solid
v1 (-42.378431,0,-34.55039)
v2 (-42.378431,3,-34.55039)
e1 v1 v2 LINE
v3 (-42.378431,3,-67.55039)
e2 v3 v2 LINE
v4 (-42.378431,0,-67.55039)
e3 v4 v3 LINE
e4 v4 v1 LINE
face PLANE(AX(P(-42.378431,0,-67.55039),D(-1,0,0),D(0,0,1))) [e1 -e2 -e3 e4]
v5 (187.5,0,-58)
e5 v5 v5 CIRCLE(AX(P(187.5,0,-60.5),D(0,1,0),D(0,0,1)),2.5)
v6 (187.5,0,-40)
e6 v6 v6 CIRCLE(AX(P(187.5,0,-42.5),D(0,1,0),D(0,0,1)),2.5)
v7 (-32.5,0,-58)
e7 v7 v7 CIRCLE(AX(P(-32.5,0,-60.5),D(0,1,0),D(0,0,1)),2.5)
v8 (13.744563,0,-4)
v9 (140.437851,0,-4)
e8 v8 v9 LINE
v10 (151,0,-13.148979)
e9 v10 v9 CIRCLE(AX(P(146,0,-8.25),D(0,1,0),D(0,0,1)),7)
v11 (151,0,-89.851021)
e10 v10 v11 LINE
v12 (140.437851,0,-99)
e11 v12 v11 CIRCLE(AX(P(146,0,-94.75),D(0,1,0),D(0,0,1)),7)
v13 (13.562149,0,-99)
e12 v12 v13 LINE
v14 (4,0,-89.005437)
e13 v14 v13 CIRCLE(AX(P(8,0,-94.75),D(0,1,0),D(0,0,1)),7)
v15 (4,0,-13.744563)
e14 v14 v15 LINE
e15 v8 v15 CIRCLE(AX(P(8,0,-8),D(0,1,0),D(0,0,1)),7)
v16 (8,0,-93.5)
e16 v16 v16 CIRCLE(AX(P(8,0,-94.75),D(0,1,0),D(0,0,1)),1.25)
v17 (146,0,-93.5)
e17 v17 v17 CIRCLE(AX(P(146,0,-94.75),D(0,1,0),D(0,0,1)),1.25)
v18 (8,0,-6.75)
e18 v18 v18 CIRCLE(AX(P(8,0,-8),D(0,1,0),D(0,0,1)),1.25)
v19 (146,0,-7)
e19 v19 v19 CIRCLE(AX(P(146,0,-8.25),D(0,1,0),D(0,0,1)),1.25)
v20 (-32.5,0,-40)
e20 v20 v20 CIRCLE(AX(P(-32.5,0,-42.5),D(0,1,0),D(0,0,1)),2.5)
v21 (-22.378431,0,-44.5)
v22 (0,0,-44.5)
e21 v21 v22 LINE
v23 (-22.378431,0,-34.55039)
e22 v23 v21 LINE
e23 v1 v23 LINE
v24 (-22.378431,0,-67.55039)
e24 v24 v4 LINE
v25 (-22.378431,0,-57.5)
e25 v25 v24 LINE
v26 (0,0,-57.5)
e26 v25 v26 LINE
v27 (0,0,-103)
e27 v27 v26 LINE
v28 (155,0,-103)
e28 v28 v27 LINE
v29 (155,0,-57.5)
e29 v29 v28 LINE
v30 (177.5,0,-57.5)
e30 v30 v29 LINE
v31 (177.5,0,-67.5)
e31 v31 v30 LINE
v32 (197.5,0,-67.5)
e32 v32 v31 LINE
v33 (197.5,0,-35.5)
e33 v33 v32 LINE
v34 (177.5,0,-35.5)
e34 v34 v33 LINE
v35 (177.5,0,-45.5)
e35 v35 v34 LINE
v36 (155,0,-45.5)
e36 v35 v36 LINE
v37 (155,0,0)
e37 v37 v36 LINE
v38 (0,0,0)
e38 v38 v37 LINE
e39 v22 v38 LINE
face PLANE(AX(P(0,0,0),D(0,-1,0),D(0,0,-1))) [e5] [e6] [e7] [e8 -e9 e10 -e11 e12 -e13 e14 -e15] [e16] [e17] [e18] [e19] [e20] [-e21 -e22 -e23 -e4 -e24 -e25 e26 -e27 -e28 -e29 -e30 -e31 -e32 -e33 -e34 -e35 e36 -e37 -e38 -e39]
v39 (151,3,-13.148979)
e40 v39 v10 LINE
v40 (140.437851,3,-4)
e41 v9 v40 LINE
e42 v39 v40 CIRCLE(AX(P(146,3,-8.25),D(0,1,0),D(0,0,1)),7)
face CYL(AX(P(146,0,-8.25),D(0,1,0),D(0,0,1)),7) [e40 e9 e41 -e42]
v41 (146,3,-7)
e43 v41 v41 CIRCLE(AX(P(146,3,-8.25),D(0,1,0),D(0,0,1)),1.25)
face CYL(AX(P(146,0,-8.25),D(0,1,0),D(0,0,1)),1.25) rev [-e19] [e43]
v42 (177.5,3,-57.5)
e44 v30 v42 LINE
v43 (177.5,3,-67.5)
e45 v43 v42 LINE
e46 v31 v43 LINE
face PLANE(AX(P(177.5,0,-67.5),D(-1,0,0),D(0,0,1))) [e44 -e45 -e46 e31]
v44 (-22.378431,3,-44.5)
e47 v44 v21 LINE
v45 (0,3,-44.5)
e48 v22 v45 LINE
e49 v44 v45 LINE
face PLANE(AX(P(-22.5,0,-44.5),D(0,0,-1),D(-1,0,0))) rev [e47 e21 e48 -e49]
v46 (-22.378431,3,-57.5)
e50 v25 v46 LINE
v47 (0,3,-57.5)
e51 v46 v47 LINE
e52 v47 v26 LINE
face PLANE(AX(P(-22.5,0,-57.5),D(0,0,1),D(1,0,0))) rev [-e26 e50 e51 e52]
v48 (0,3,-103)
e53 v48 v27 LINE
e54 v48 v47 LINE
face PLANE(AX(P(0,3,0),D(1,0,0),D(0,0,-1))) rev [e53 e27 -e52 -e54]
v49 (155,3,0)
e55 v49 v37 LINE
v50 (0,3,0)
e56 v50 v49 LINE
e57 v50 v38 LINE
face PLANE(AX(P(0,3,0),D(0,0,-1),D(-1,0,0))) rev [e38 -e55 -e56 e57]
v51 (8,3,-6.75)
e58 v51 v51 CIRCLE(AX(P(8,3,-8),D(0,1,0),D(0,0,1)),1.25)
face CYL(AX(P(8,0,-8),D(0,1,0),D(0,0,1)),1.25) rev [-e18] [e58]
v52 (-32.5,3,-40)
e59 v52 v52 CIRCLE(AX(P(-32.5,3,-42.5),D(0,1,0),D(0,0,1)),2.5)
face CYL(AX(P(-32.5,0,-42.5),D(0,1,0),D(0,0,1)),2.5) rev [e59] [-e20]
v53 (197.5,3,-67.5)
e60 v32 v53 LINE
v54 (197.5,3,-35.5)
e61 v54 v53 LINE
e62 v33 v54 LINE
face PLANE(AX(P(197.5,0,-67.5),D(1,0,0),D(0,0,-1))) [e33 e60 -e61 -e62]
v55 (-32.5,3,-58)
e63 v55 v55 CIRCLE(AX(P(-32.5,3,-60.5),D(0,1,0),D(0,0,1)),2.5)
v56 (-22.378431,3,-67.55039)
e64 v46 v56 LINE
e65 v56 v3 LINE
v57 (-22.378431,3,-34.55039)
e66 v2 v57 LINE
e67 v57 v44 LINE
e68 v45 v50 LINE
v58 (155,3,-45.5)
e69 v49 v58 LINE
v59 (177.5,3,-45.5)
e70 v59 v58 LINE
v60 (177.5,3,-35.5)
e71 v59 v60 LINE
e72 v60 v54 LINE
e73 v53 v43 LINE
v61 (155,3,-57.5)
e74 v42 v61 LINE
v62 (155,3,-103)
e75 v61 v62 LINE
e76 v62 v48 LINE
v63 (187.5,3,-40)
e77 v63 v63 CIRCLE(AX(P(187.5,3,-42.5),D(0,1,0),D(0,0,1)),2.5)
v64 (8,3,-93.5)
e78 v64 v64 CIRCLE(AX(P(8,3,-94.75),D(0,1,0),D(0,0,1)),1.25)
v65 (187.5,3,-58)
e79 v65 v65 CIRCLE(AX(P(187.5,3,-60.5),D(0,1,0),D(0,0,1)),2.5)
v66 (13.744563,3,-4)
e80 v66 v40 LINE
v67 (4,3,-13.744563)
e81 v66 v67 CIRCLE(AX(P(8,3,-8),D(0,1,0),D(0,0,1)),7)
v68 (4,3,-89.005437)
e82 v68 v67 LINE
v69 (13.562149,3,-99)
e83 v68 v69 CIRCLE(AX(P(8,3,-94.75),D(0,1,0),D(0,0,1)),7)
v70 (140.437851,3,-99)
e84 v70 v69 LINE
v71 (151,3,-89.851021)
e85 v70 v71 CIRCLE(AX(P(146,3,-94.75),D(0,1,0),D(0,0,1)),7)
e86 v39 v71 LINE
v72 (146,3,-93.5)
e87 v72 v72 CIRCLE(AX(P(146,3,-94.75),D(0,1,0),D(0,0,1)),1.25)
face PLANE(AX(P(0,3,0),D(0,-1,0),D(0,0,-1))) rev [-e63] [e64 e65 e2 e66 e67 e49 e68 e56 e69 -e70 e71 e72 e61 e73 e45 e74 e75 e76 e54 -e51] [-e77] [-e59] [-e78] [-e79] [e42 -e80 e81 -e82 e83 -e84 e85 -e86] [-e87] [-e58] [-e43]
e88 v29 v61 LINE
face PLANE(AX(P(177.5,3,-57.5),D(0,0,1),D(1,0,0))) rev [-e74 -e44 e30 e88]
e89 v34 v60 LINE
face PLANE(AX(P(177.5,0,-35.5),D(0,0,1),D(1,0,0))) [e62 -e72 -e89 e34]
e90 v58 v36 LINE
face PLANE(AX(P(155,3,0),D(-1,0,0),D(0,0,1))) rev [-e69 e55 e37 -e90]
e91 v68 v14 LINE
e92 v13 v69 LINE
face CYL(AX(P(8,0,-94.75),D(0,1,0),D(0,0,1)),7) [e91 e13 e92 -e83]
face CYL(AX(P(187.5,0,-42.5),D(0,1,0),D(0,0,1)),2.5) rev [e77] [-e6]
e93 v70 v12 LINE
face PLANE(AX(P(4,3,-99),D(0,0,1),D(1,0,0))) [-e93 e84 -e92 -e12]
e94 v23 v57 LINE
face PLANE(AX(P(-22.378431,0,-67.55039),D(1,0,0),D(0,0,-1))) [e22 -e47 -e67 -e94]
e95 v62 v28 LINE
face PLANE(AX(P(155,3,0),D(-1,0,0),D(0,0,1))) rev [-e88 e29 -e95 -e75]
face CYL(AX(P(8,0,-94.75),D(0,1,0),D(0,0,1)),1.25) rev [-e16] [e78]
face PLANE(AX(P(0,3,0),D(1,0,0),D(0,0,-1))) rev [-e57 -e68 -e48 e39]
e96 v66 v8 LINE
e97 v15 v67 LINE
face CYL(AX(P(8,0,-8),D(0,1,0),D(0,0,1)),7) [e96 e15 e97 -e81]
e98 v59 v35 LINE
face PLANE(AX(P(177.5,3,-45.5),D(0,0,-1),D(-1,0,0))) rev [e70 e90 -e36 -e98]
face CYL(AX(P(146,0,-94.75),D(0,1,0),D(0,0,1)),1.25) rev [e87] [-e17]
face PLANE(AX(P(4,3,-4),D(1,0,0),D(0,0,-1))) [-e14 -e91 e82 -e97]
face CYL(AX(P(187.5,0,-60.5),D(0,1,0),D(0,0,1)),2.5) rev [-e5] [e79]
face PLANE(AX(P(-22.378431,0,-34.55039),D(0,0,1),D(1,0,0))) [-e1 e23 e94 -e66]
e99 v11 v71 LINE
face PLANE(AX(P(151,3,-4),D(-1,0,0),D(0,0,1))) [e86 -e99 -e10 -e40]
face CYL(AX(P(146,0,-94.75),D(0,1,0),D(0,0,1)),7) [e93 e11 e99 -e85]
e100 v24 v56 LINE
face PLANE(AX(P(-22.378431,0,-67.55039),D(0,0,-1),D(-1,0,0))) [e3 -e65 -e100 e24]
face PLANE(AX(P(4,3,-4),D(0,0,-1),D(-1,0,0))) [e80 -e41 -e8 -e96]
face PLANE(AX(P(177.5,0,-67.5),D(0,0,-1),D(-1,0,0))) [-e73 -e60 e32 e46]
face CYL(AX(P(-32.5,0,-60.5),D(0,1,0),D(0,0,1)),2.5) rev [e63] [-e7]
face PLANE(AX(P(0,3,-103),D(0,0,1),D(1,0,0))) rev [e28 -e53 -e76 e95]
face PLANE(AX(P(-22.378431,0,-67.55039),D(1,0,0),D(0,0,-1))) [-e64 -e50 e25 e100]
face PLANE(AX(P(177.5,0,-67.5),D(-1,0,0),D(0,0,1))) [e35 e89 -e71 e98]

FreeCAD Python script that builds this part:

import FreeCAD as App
import Part
import Sketcher
Q = App.Units.Quantity


def add_polygon(sketch, points):
    """Adds a closed chain of lines whose ends are joined by coincident constraints."""
    first, n = sketch.GeometryCount, len(points)
    for a, b in zip(points, points[1:] + points[:1]):
        sketch.addGeometry(Part.LineSegment(App.Vector(*a, 0), App.Vector(*b, 0)), False)
    for i in range(n):
        sketch.addConstraint(Sketcher.Constraint("Coincident", first + i, 2, first + (i + 1) % n, 1))

doc = App.newDocument("Part")
body = doc.addObject("PartDesign::Body", "Body")

# Sketch on XZ plane
sketch1 = body.newObject("Sketcher::SketchObject", "Sketch")
sketch1.AttachmentSupport = (doc.getObject("XZ_Plane"), [""])
sketch1.MapMode = "FlatFace"
add_polygon(sketch1, [(0, -103), (0, 0), (155, 0), (155, -103)])  # lines 0-3
add_polygon(sketch1, [(151, -4), (4, -4), (4, -99), (151, -99)])  # lines 4-7
sketch1.addConstraint(Sketcher.Constraint("Vertical", 0))
sketch1.addConstraint(Sketcher.Constraint("Horizontal", 1))
sketch1.addConstraint(Sketcher.Constraint("Vertical", 2))
sketch1.addConstraint(Sketcher.Constraint("Horizontal", 3))
sketch1.addConstraint(Sketcher.Constraint("Horizontal", 4))
sketch1.addConstraint(Sketcher.Constraint("Vertical", 5))
sketch1.addConstraint(Sketcher.Constraint("Horizontal", 6))
sketch1.addConstraint(Sketcher.Constraint("Vertical", 7))
sketch1.addConstraint(Sketcher.Constraint("Coincident", 0, 2, -1, 1))
sketch1.addConstraint(Sketcher.Constraint("DistanceX", 1, 1, 1, 2, Q("155 mm")))
sketch1.addConstraint(Sketcher.Constraint("DistanceX", 4, 2, 4, 1, Q("147 mm")))
sketch1.addConstraint(Sketcher.Constraint("DistanceY", 0, 1, 0, 2, Q("103 mm")))
sketch1.addConstraint(Sketcher.Constraint("DistanceY", 5, 2, 5, 1, Q("95 mm")))
sketch1.addConstraint(Sketcher.Constraint("DistanceX", -1, 1, 4, 2, Q("4 mm")))
sketch1.addConstraint(Sketcher.Constraint("DistanceY", 4, 2, -1, 1, Q("4 mm")))
pad1 = body.newObject("PartDesign::Pad", "Pad")
pad1.Profile = sketch1
pad1.Length = 3
pad1.Reversed = True

# Sketch on YZ plane
sketch2 = body.newObject("Sketcher::SketchObject", "Sketch001")
sketch2.AttachmentSupport = (doc.getObject("YZ_Plane"), [""])
sketch2.MapMode = "FlatFace"
add_polygon(sketch2, [(3, -57.5), (0, -57.5), (0, -44.5), (3, -44.5)])  # lines 0-3
sketch2.addConstraint(Sketcher.Constraint("Horizontal", 0))
sketch2.addConstraint(Sketcher.Constraint("Vertical", 1))
sketch2.addConstraint(Sketcher.Constraint("Horizontal", 2))
sketch2.addConstraint(Sketcher.Constraint("Vertical", 3))
sketch2.addConstraint(Sketcher.Constraint("PointOnObject", 0, 2, -2))
sketch2.addConstraint(Sketcher.Constraint("DistanceX", 0, 2, 0, 1, Q("3 mm")))
sketch2.addConstraint(Sketcher.Constraint("DistanceY", 1, 1, 1, 2, Q("13 mm")))
sketch2.addConstraint(Sketcher.Constraint("DistanceY", 0, 2, -1, 1, Q("57.5 mm")))
pad2 = body.newObject("PartDesign::Pad", "Pad001")
pad2.Profile = sketch2
pad2.Length = 22.5
pad2.Reversed = True

# Sketch on YZ plane
sketch3 = body.newObject("Sketcher::SketchObject", "Sketch002")
sketch3.AttachmentSupport = (doc.getObject("YZ_Plane"), [""])
sketch3.MapMode = "FlatFace"
sketch3.AttachmentOffset = App.Placement(App.Vector(0, 0, 155), App.Rotation())
add_polygon(sketch3, [(3, -45.5), (0, -45.5), (0, -57.5), (3, -57.5)])  # lines 0-3
sketch3.addConstraint(Sketcher.Constraint("Horizontal", 0))
sketch3.addConstraint(Sketcher.Constraint("Vertical", 1))
sketch3.addConstraint(Sketcher.Constraint("Horizontal", 2))
sketch3.addConstraint(Sketcher.Constraint("Vertical", 3))
sketch3.addConstraint(Sketcher.Constraint("PointOnObject", 0, 2, -2))
sketch3.addConstraint(Sketcher.Constraint("DistanceX", 0, 2, 0, 1, Q("3 mm")))
sketch3.addConstraint(Sketcher.Constraint("DistanceY", 1, 2, 1, 1, Q("12 mm")))
sketch3.addConstraint(Sketcher.Constraint("DistanceY", 0, 2, -1, 1, Q("45.5 mm")))
pad3 = body.newObject("PartDesign::Pad", "Pad002")
pad3.Profile = sketch3
pad3.Length = 22.5

# Sketch on XZ plane
sketch4 = body.newObject("Sketcher::SketchObject", "Sketch003")
sketch4.AttachmentSupport = (doc.getObject("XZ_Plane"), [""])
sketch4.MapMode = "FlatFace"
sketch4.AttachmentOffset = App.Placement(App.Vector(0, 0, -3), App.Rotation())
add_polygon(sketch4, [(177.5, -67.5), (177.5, -35.5), (197.5, -35.5), (197.5, -67.5)])  # lines 0-3
sketch4.addGeometry(Part.Circle(App.Vector(187.5, -42.5, 0), App.Vector(0, 0, 1), 2.5), False)  # 4
sketch4.addGeometry(Part.Circle(App.Vector(187.5, -60.5, 0), App.Vector(0, 0, 1), 2.5), False)  # 5
sketch4.addConstraint(Sketcher.Constraint("Vertical", 0))
sketch4.addConstraint(Sketcher.Constraint("Horizontal", 1))
sketch4.addConstraint(Sketcher.Constraint("Vertical", 2))
sketch4.addConstraint(Sketcher.Constraint("Horizontal", 3))
sketch4.addConstraint(Sketcher.Constraint("Equal", 4, 5))
sketch4.addConstraint(Sketcher.Constraint("Vertical", 4, 3, 5, 3))
sketch4.addConstraint(Sketcher.Constraint("Diameter", 4, Q("5 mm")))
sketch4.addConstraint(Sketcher.Constraint("DistanceX", 1, 1, 1, 2, Q("20 mm")))
sketch4.addConstraint(Sketcher.Constraint("DistanceY", 0, 1, 0, 2, Q("32 mm")))
sketch4.addConstraint(Sketcher.Constraint("DistanceY", 5, 3, 4, 3, Q("18 mm")))
sketch4.addConstraint(Sketcher.Constraint("DistanceX", 0, 2, 4, 3, Q("10 mm")))
sketch4.addConstraint(Sketcher.Constraint("DistanceY", 4, 3, 0, 2, Q("7 mm")))
sketch4.addConstraint(Sketcher.Constraint("DistanceX", -1, 1, 4, 3, Q("187.5 mm")))
sketch4.addConstraint(Sketcher.Constraint("DistanceY", 4, 3, -1, 1, Q("42.5 mm")))
pad4 = body.newObject("PartDesign::Pad", "Pad003")
pad4.Profile = sketch4
pad4.Length = 3

# Sketch on XZ plane
sketch5 = body.newObject("Sketcher::SketchObject", "Sketch004")
sketch5.AttachmentSupport = (doc.getObject("XZ_Plane"), [""])
sketch5.MapMode = "FlatFace"
sketch5.AttachmentOffset = App.Placement(App.Vector(0, 0, -3), App.Rotation())
add_polygon(sketch5, [(-42.378431, -67.55039), (-42.378431, -34.55039), (-22.378431, -34.55039), (-22.378431, -67.55039)])  # lines 0-3
sketch5.addGeometry(Part.Circle(App.Vector(-32.5, -42.5, 0), App.Vector(0, 0, 1), 2.5), False)  # 4
sketch5.addGeometry(Part.Circle(App.Vector(-32.5, -60.5, 0), App.Vector(0, 0, 1), 2.5), False)  # 5
sketch5.addConstraint(Sketcher.Constraint("Vertical", 0))
sketch5.addConstraint(Sketcher.Constraint("Horizontal", 1))
sketch5.addConstraint(Sketcher.Constraint("Vertical", 2))
sketch5.addConstraint(Sketcher.Constraint("Horizontal", 3))
sketch5.addConstraint(Sketcher.Constraint("Equal", 4, 5))
sketch5.addConstraint(Sketcher.Constraint("Vertical", 4, 3, 5, 3))
sketch5.addConstraint(Sketcher.Constraint("Diameter", 4, Q("5 mm")))
sketch5.addConstraint(Sketcher.Constraint("DistanceX", 1, 1, 1, 2, Q("20 mm")))
sketch5.addConstraint(Sketcher.Constraint("DistanceY", 0, 1, 0, 2, Q("33 mm")))
sketch5.addConstraint(Sketcher.Constraint("DistanceY", 5, 3, 4, 3, Q("18 mm")))
sketch5.addConstraint(Sketcher.Constraint("DistanceX", 4, 3, -1, 1, Q("32.5 mm")))
sketch5.addConstraint(Sketcher.Constraint("DistanceY", 4, 3, -1, 1, Q("42.5 mm")))
sketch5.addConstraint(Sketcher.Constraint("DistanceX", 0, 2, -1, 1, Q("42.378431 mm")))
sketch5.addConstraint(Sketcher.Constraint("DistanceY", 0, 2, -1, 1, Q("34.55039 mm")))
pad5 = body.newObject("PartDesign::Pad", "Pad004")
pad5.Profile = sketch5
pad5.Length = 3

# Sketch on XZ plane
sketch6 = body.newObject("Sketcher::SketchObject", "Sketch005")
sketch6.AttachmentSupport = (doc.getObject("XZ_Plane"), [""])
sketch6.MapMode = "FlatFace"
sketch6.AttachmentOffset = App.Placement(App.Vector(0, 0, -3), App.Rotation())
sketch6.addGeometry(Part.Circle(App.Vector(8, -8, 0), App.Vector(0, 0, 1), 7), False)
sketch6.addGeometry(Part.Circle(App.Vector(8, -8, 0), App.Vector(0, 0, 1), 1.25), False)
sketch6.addGeometry(Part.Circle(App.Vector(146, -8.25, 0), App.Vector(0, 0, 1), 7), False)
sketch6.addGeometry(Part.Circle(App.Vector(146, -8.25, 0), App.Vector(0, 0, 1), 1.25), False)
sketch6.addGeometry(Part.Circle(App.Vector(8, -94.75, 0), App.Vector(0, 0, 1), 7), False)
sketch6.addGeometry(Part.Circle(App.Vector(8, -94.75, 0), App.Vector(0, 0, 1), 1.25), False)
sketch6.addGeometry(Part.Circle(App.Vector(146, -94.75, 0), App.Vector(0, 0, 1), 7), False)
sketch6.addGeometry(Part.Circle(App.Vector(146, -94.75, 0), App.Vector(0, 0, 1), 1.25), False)
sketch6.addConstraint(Sketcher.Constraint("Coincident", 1, 3, 0, 3))
sketch6.addConstraint(Sketcher.Constraint("Coincident", 3, 3, 2, 3))
sketch6.addConstraint(Sketcher.Constraint("Coincident", 5, 3, 4, 3))
sketch6.addConstraint(Sketcher.Constraint("Coincident", 7, 3, 6, 3))
sketch6.addConstraint(Sketcher.Constraint("Equal", 0, 2))
sketch6.addConstraint(Sketcher.Constraint("Equal", 1, 3))
sketch6.addConstraint(Sketcher.Constraint("Equal", 2, 4))
sketch6.addConstraint(Sketcher.Constraint("Equal", 3, 5))
sketch6.addConstraint(Sketcher.Constraint("Equal", 4, 6))
sketch6.addConstraint(Sketcher.Constraint("Equal", 5, 7))
sketch6.addConstraint(Sketcher.Constraint("Horizontal", 5, 3, 6, 3))
sketch6.addConstraint(Sketcher.Constraint("Vertical", 1, 3, 4, 3))
sketch6.addConstraint(Sketcher.Constraint("Vertical", 3, 3, 6, 3))
sketch6.addConstraint(Sketcher.Constraint("Diameter", 0, Q("14 mm")))
sketch6.addConstraint(Sketcher.Constraint("Diameter", 1, Q("2.5 mm")))
sketch6.addConstraint(Sketcher.Constraint("DistanceX", -1, 1, 0, 3, Q("8 mm")))
sketch6.addConstraint(Sketcher.Constraint("DistanceY", 0, 3, -1, 1, Q("8 mm")))
sketch6.addConstraint(Sketcher.Constraint("DistanceX", -1, 1, 2, 3, Q("146 mm")))
sketch6.addConstraint(Sketcher.Constraint("DistanceY", 4, 3, 2, 3, Q("86.5 mm")))
sketch6.addConstraint(Sketcher.Constraint("DistanceY", 2, 3, -1, 1, Q("8.25 mm")))
pad6 = body.newObject("PartDesign::Pad", "Pad005")
pad6.Profile = sketch6
pad6.Length = 3

# Sketch on XZ plane
sketch7 = body.newObject("Sketcher::SketchObject", "Sketch006")
sketch7.AttachmentSupport = (doc.getObject("XZ_Plane"), [""])
sketch7.MapMode = "FlatFace"
sketch7.AttachmentOffset = App.Placement(App.Vector(0, 0, -3), App.Rotation())
sketch7.addGeometry(Part.Circle(App.Vector(8, -8, 0), App.Vector(0, 0, 1), 7), False)
sketch7.addGeometry(Part.Circle(App.Vector(8, -8, 0), App.Vector(0, 0, 1), 1.25), False)
sketch7.addGeometry(Part.Circle(App.Vector(146, -8.25, 0), App.Vector(0, 0, 1), 7), False)
sketch7.addGeometry(Part.Circle(App.Vector(146, -8.25, 0), App.Vector(0, 0, 1), 1.25), False)
sketch7.addGeometry(Part.Circle(App.Vector(8, -94.75, 0), App.Vector(0, 0, 1), 7), False)
sketch7.addGeometry(Part.Circle(App.Vector(8, -94.75, 0), App.Vector(0, 0, 1), 1.25), False)
sketch7.addGeometry(Part.Circle(App.Vector(146, -94.75, 0), App.Vector(0, 0, 1), 7), False)
sketch7.addGeometry(Part.Circle(App.Vector(146, -94.75, 0), App.Vector(0, 0, 1), 1.25), False)
sketch7.addConstraint(Sketcher.Constraint("Coincident", 1, 3, 0, 3))
sketch7.addConstraint(Sketcher.Constraint("Coincident", 3, 3, 2, 3))
sketch7.addConstraint(Sketcher.Constraint("Coincident", 5, 3, 4, 3))
sketch7.addConstraint(Sketcher.Constraint("Coincident", 7, 3, 6, 3))
sketch7.addConstraint(Sketcher.Constraint("Equal", 0, 2))
sketch7.addConstraint(Sketcher.Constraint("Equal", 1, 3))
sketch7.addConstraint(Sketcher.Constraint("Equal", 2, 4))
sketch7.addConstraint(Sketcher.Constraint("Equal", 3, 5))
sketch7.addConstraint(Sketcher.Constraint("Equal", 4, 6))
sketch7.addConstraint(Sketcher.Constraint("Equal", 5, 7))
sketch7.addConstraint(Sketcher.Constraint("Horizontal", 5, 3, 6, 3))
sketch7.addConstraint(Sketcher.Constraint("Vertical", 1, 3, 4, 3))
sketch7.addConstraint(Sketcher.Constraint("Vertical", 3, 3, 6, 3))
sketch7.addConstraint(Sketcher.Constraint("Diameter", 0, Q("14 mm")))
sketch7.addConstraint(Sketcher.Constraint("Diameter", 1, Q("2.5 mm")))
sketch7.addConstraint(Sketcher.Constraint("DistanceX", -1, 1, 0, 3, Q("8 mm")))
sketch7.addConstraint(Sketcher.Constraint("DistanceY", 0, 3, -1, 1, Q("8 mm")))
sketch7.addConstraint(Sketcher.Constraint("DistanceX", -1, 1, 2, 3, Q("146 mm")))
sketch7.addConstraint(Sketcher.Constraint("DistanceY", 4, 3, 2, 3, Q("86.5 mm")))
sketch7.addConstraint(Sketcher.Constraint("DistanceY", 2, 3, -1, 1, Q("8.25 mm")))
pad7 = body.newObject("PartDesign::Pad", "Pad006")
pad7.Profile = sketch7
pad7.Length = 3

doc.recompute()
